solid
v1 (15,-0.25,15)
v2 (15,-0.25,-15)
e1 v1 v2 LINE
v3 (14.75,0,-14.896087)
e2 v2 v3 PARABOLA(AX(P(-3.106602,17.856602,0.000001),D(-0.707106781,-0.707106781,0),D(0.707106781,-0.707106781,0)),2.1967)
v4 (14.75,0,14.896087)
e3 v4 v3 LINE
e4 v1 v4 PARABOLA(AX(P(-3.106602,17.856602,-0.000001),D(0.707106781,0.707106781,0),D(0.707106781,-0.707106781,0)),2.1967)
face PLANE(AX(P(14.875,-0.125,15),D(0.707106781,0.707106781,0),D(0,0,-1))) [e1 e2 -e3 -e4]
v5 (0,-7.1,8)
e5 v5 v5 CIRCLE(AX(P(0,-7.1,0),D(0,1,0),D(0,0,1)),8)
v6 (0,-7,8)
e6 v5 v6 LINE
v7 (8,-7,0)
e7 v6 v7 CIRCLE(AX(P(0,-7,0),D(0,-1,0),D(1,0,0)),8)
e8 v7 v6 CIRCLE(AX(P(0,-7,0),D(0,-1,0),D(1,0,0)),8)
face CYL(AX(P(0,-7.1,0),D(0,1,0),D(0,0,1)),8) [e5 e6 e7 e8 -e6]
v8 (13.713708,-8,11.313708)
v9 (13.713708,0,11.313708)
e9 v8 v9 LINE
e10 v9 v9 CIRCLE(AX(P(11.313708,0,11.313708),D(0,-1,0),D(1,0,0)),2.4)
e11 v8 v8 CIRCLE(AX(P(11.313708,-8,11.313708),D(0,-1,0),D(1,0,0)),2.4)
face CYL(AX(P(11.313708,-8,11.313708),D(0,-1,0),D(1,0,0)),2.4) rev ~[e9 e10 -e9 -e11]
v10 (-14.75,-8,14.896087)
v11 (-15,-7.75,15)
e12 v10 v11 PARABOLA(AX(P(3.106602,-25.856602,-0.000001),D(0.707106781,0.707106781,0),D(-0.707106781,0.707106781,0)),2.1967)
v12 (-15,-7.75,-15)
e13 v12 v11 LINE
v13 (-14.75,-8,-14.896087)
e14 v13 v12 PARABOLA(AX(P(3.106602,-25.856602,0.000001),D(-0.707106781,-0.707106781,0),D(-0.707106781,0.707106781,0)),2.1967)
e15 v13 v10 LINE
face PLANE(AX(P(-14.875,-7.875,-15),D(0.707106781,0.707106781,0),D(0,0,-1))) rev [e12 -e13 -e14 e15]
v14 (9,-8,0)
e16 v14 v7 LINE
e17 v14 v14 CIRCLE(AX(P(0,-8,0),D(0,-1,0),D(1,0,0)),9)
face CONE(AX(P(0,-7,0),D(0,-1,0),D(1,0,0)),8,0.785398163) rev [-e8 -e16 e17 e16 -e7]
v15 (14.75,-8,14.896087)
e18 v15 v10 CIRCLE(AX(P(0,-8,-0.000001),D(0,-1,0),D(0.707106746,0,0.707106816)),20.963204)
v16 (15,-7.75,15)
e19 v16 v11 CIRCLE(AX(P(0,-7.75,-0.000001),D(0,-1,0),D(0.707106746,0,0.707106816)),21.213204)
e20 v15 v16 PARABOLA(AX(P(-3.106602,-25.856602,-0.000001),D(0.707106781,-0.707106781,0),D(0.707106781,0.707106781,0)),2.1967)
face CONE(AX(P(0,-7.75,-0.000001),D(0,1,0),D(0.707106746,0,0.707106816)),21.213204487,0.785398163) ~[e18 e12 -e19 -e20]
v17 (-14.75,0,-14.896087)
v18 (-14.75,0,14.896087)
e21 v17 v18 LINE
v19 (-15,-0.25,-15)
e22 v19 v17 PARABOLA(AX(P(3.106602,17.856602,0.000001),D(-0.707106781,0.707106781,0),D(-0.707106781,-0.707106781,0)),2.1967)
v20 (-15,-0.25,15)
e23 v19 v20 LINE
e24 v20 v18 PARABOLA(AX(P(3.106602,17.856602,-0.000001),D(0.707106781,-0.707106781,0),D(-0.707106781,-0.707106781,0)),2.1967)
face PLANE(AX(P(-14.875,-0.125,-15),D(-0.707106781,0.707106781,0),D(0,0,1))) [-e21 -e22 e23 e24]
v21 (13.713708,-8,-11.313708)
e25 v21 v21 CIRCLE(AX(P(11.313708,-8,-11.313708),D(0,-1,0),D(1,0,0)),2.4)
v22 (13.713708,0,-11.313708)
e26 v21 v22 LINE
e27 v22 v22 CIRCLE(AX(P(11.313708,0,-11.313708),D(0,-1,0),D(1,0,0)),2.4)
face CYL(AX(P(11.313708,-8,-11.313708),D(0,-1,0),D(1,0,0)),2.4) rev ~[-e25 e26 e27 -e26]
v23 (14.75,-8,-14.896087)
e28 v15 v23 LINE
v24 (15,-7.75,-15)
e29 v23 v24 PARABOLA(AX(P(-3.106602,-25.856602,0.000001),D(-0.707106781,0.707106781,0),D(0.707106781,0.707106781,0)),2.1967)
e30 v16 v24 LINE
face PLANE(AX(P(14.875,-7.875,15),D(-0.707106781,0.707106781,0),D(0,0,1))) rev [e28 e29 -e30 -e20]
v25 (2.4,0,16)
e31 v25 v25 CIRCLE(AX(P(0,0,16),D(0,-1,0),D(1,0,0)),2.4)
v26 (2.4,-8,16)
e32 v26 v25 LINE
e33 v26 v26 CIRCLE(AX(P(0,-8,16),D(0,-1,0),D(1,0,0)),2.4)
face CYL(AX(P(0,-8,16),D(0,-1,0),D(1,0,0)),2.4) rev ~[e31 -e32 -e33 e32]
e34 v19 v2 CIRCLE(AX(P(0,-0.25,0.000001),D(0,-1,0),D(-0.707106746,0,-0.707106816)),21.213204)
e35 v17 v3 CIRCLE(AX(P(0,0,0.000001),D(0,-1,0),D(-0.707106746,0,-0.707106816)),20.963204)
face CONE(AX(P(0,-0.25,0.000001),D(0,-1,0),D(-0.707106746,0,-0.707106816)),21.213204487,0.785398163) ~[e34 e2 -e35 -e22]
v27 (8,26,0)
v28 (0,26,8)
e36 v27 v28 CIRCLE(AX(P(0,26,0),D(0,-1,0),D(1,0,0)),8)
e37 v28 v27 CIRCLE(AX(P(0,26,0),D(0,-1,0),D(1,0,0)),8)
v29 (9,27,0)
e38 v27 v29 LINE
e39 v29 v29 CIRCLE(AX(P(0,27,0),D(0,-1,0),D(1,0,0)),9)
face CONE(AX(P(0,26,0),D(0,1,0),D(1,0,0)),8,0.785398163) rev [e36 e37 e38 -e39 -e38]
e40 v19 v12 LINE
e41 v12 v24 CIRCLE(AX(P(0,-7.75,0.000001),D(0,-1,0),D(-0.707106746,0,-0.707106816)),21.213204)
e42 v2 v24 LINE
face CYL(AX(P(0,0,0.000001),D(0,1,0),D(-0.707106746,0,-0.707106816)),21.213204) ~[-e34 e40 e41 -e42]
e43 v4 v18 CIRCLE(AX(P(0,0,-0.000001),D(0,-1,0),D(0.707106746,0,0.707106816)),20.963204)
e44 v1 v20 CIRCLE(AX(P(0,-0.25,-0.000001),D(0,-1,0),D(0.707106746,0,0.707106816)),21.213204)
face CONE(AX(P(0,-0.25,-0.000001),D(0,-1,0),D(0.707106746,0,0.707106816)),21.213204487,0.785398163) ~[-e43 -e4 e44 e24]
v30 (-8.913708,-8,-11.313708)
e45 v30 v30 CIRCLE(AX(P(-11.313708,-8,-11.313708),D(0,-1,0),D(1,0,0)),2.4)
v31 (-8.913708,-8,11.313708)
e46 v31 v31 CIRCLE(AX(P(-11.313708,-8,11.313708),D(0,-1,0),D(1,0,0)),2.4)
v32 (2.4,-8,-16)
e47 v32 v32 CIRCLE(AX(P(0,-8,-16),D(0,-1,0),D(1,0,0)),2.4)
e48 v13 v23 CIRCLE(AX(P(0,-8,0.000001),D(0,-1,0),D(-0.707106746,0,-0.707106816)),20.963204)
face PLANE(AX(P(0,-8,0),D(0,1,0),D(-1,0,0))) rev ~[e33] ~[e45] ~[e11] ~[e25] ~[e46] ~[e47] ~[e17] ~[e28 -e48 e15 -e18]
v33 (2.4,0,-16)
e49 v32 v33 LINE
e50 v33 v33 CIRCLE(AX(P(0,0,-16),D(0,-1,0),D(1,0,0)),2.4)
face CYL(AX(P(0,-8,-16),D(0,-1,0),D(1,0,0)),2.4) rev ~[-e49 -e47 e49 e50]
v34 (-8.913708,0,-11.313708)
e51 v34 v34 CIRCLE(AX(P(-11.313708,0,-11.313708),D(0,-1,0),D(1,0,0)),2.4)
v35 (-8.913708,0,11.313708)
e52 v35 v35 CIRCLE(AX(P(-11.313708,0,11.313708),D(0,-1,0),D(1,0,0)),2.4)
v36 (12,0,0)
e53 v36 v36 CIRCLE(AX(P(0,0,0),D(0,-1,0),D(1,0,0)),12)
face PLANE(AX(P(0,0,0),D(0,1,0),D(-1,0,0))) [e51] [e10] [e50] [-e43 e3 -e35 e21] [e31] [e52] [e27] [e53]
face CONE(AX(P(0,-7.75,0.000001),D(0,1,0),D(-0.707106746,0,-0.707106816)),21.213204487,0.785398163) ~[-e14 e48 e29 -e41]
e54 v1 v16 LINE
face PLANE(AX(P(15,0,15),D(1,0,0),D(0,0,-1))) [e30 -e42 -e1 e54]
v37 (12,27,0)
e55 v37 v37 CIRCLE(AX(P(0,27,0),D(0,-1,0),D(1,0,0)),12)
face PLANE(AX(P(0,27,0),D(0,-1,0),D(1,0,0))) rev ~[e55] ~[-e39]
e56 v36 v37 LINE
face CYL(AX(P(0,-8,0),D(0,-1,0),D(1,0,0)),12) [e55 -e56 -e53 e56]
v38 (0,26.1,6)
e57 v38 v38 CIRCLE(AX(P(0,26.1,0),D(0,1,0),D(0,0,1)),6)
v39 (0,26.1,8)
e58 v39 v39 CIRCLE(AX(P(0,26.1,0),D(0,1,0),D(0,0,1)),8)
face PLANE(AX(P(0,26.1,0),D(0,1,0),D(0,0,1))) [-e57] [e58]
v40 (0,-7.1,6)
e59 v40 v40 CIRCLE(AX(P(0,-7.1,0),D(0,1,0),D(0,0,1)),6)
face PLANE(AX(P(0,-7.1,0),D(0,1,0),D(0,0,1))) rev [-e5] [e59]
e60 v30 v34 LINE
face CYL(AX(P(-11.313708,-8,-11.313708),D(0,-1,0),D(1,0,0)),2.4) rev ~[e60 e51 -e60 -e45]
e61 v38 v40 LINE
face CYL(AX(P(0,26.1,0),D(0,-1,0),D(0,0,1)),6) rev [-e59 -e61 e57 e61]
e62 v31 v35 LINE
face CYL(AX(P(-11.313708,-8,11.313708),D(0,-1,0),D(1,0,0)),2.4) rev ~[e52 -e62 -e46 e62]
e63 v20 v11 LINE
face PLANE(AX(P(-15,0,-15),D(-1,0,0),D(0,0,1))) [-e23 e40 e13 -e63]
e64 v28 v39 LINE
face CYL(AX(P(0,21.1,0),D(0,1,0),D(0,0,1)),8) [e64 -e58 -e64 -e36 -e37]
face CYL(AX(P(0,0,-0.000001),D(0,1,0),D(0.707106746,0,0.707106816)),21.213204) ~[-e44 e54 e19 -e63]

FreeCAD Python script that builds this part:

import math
import FreeCAD as App
import Part
import Sketcher

V = App.Vector


def edges_at(feature, points):
    """Names of the edges that pass closest to the given points."""
    edges = feature.Shape.Edges
    near = lambda p: min(range(len(edges)), key=lambda i: edges[i].distToShape(Part.Vertex(*p))[0])
    return sorted({f"Edge{near(p) + 1}" for p in points})


def add_polygon(sketch, points):
    """Adds a closed chain of lines whose ends are joined by coincident constraints."""
    first, n = sketch.GeometryCount, len(points)
    for a, b in zip(points, points[1:] + points[:1]):
        sketch.addGeometry(Part.LineSegment(App.Vector(*a, 0), App.Vector(*b, 0)), False)
    for i in range(n):
        sketch.addConstraint(Sketcher.Constraint("Coincident", first + i, 2, first + (i + 1) % n, 1))

doc = App.newDocument("Part")
params = doc.addObject("Spreadsheet::Sheet", "Params")
for row, (alias, value) in enumerate([
    ("sketch1_width", "5 mm"),
    ("sketch1_height", "2 mm"),
    ("sketch1_height2", "1 mm"),
    ("sketch1_width2", "33.2 mm"),
    ("revolution_angle", "360 deg"),
    ("sketch2_diameter", "16 mm"),
    ("sketch2_height", "30 mm"),
    ("pad1_length", "8 mm"),
    ("sketch3_diameter", "4.8 mm"),
    ("sketch4_diameter", "24 mm"),
    ("sketch4_diameter2", "16 mm"),
    ("pad2_length", "35 mm"),
    ("chamfer_size", "0.25 mm"),
    ("chamfer2_size", "1 mm"),
    ("chamfer3_size", "1 mm"),
], start=1):
    params.set(f"A{row}", alias)
    params.set(f"B{row}", "=" + value)
    params.setAlias(f"B{row}", alias)

body = doc.addObject("PartDesign::Body", "Body")

# Sketch on YZ plane
sketch1 = body.newObject("Sketcher::SketchObject", "Sketch")
sketch1.AttachmentSupport = (doc.getObject("YZ_Plane"), [""])
sketch1.MapMode = "FlatFace"
add_polygon(sketch1, [(-7.1, 8), (-7.1, 6), (26.1, 6), (26.1, 8), (21.1, 8), (21.1, 9), (-2.1, 9), (-2.1, 8)])  # lines 0-7
sketch1.addConstraint(Sketcher.Constraint("Vertical", 0))
sketch1.addConstraint(Sketcher.Constraint("Horizontal", 1))
sketch1.addConstraint(Sketcher.Constraint("Vertical", 2))
sketch1.addConstraint(Sketcher.Constraint("Horizontal", 3))
sketch1.addConstraint(Sketcher.Constraint("Vertical", 4))
sketch1.addConstraint(Sketcher.Constraint("Horizontal", 5))
sketch1.addConstraint(Sketcher.Constraint("Vertical", 6))
sketch1.addConstraint(Sketcher.Constraint("Horizontal", 7))
sketch1.addConstraint(Sketcher.Constraint("Horizontal", 3, 2, 6, 2))
sketch1.addConstraint(Sketcher.Constraint("Equal", 3, 7))
sketch1.addConstraint(Sketcher.Constraint("DistanceX", 3, 2, 3, 1, 5.0))
sketch1.addConstraint(Sketcher.Constraint("DistanceY", 0, 2, 0, 1, 2.0))
sketch1.addConstraint(Sketcher.Constraint("DistanceY", 4, 1, 4, 2, 1.0))
sketch1.addConstraint(Sketcher.Constraint("DistanceX", 1, 1, 1, 2, 33.2))
sketch1.addConstraint(Sketcher.Constraint("DistanceY", -1, 1, 0, 2, 6.0))
sketch1.addConstraint(Sketcher.Constraint("DistanceX", 0, 2, -1, 1, 7.1))
sketch1.setExpression("Constraints[18]", "Params.sketch1_width")
sketch1.setExpression("Constraints[19]", "Params.sketch1_height")
sketch1.setExpression("Constraints[20]", "Params.sketch1_height2")
sketch1.setExpression("Constraints[21]", "Params.sketch1_width2")
revolution = body.newObject("PartDesign::Revolution", "Revolution")
revolution.Profile = sketch1
revolution.ReferenceAxis = (sketch1, ["H_Axis"])
revolution.setExpression("Angle", "Params.revolution_angle")
body2 = doc.addObject("PartDesign::Body", "Body001")

# Sketch on XZ plane
sketch2 = body2.newObject("Sketcher::SketchObject", "Sketch001")
sketch2.AttachmentSupport = (doc.getObject("XZ_Plane001"), [""])
sketch2.MapMode = "FlatFace"
sketch2.addGeometry(Part.LineSegment(V(15, -15, 0), V(15, 15, 0)), False)
sketch2.addGeometry(Part.ArcOfCircle(Part.Circle(V(0, -0.000001, 0), V(0, 0, 1), 21.213204), math.radians(45.000003), math.radians(134.999997)), False)
sketch2.addGeometry(Part.LineSegment(V(-15, 15, 0), V(-15, -15, 0)), False)
sketch2.addGeometry(Part.ArcOfCircle(Part.Circle(V(0, 0.000001, 0), V(0, 0, 1), 21.213204), math.radians(-134.999997), math.radians(-45.000003)), False)
sketch2.addGeometry(Part.Circle(V(0, 0, 0), V(0, 0, 1), 8), False)
sketch2.addConstraint(Sketcher.Constraint("Coincident", 0, 2, 1, 1))
sketch2.addConstraint(Sketcher.Constraint("Coincident", 1, 2, 2, 1))
sketch2.addConstraint(Sketcher.Constraint("Coincident", 2, 2, 3, 1))
sketch2.addConstraint(Sketcher.Constraint("Coincident", 3, 2, 0, 1))
sketch2.addConstraint(Sketcher.Constraint("Vertical", 0))
sketch2.addConstraint(Sketcher.Constraint("Vertical", 2))
sketch2.addConstraint(Sketcher.Constraint("Coincident", 1, 3, -1, 1))
sketch2.addConstraint(Sketcher.Constraint("Coincident", 3, 3, -1, 1))
sketch2.addConstraint(Sketcher.Constraint("Coincident", 4, 3, -1, 1))
sketch2.addConstraint(Sketcher.Constraint("Equal", 1, 3))
sketch2.addConstraint(Sketcher.Constraint("Horizontal", 0, 2, 1, 2))
sketch2.addConstraint(Sketcher.Constraint("Diameter", 4, 16.0))
sketch2.addConstraint(Sketcher.Constraint("DistanceY", 0, 1, 0, 2, 30.0))
sketch2.addConstraint(Sketcher.Constraint("DistanceX", -1, 1, 0, 2, 15.0))
sketch2.setExpression("Constraints[11]", "Params.sketch2_diameter")
sketch2.setExpression("Constraints[12]", "Params.sketch2_height")
pad1 = body2.newObject("PartDesign::Pad", "Pad")
pad1.Profile = sketch2
pad1.setExpression("Length", "Params.pad1_length")

# Sketch on XZ plane
sketch3 = body2.newObject("Sketcher::SketchObject", "Sketch002")
sketch3.AttachmentSupport = (doc.getObject("XZ_Plane001"), [""])
sketch3.MapMode = "FlatFace"
sketch3.AttachmentOffset = App.Placement(V(0, 0, 8), App.Rotation())
sketch3.addGeometry(Part.Circle(V(-11.313708, 11.313708, 0), V(0, 0, 1), 2.4), False)
sketch3.addGeometry(Part.Circle(V(0, 16, 0), V(0, 0, 1), 2.4), False)
sketch3.addGeometry(Part.Circle(V(11.313708, 11.313708, 0), V(0, 0, 1), 2.4), False)
sketch3.addGeometry(Part.Circle(V(11.313708, -11.313708, 0), V(0, 0, 1), 2.4), False)
sketch3.addGeometry(Part.Circle(V(0, -16, 0), V(0, 0, 1), 2.4), False)
sketch3.addGeometry(Part.Circle(V(-11.313708, -11.313708, 0), V(0, 0, 1), 2.4), False)
sketch3.addConstraint(Sketcher.Constraint("Equal", 0, 1))
sketch3.addConstraint(Sketcher.Constraint("Equal", 1, 2))
sketch3.addConstraint(Sketcher.Constraint("Equal", 2, 3))
sketch3.addConstraint(Sketcher.Constraint("Equal", 3, 4))
sketch3.addConstraint(Sketcher.Constraint("Equal", 4, 5))
sketch3.addConstraint(Sketcher.Constraint("Symmetric", 0, 3, 3, 3, -1, 1))
sketch3.addConstraint(Sketcher.Constraint("Symmetric", 1, 3, 4, 3, -1, 1))
sketch3.addConstraint(Sketcher.Constraint("Symmetric", 2, 3, 5, 3, -1, 1))
sketch3.addConstraint(Sketcher.Constraint("Symmetric", 0, 3, 2, 3, -2))
sketch3.addConstraint(Sketcher.Constraint("PointOnObject", 1, 3, -2))
sketch3.addConstraint(Sketcher.Constraint("Diameter", 0, 4.8))
sketch3.addConstraint(Sketcher.Constraint("DistanceY", -1, 1, 1, 3, 16.0))
sketch3.addConstraint(Sketcher.Constraint("DistanceX", 0, 3, -1, 1, 11.313708))
sketch3.addConstraint(Sketcher.Constraint("DistanceY", -1, 1, 0, 3, 11.313708))
sketch3.setExpression("Constraints[10]", "Params.sketch3_diameter")
pocket1 = body2.newObject("PartDesign::Pocket", "Pocket")
pocket1.Profile = sketch3
pocket1.Type = "ThroughAll"

# Sketch on XZ plane
sketch4 = body2.newObject("Sketcher::SketchObject", "Sketch003")
sketch4.AttachmentSupport = (doc.getObject("XZ_Plane001"), [""])
sketch4.MapMode = "FlatFace"
sketch4.AttachmentOffset = App.Placement(V(0, 0, 8), App.Rotation())
sketch4.addGeometry(Part.Circle(V(0, 0, 0), V(0, 0, 1), 12), False)
sketch4.addGeometry(Part.Circle(V(0, 0, 0), V(0, 0, 1), 8), False)
sketch4.addConstraint(Sketcher.Constraint("Coincident", 0, 3, -1, 1))
sketch4.addConstraint(Sketcher.Constraint("Coincident", 1, 3, -1, 1))
sketch4.addConstraint(Sketcher.Constraint("Diameter", 0, 24.0))
sketch4.addConstraint(Sketcher.Constraint("Diameter", 1, 16.0))
sketch4.setExpression("Constraints[2]", "Params.sketch4_diameter")
sketch4.setExpression("Constraints[3]", "Params.sketch4_diameter2")
pad2 = body2.newObject("PartDesign::Pad", "Pad001")
pad2.Profile = sketch4
pad2.setExpression("Length", "Params.pad2_length")
pad2.Reversed = True
doc.recompute()

chamfer = body2.newObject("PartDesign::Chamfer", "Chamfer")
chamfer.Base = (pad2, edges_at(pad2, [
    (0, -8, 21.213),
    (0, 0, 21.213),
    (15, 0, 0),
    (15, -8, 0),
    (0, 0, -21.213),
    (0, -8, -21.213),
    (-15, -8, 0),
    (-15, 0, 0),
]))
chamfer.setExpression("Size", "Params.chamfer_size")
doc.recompute()

chamfer2 = body2.newObject("PartDesign::Chamfer", "Chamfer001")
chamfer2.Base = (chamfer, edges_at(chamfer, [(-8, -8, 0)]))
chamfer2.setExpression("Size", "Params.chamfer2_size")
doc.recompute()

chamfer3 = body2.newObject("PartDesign::Chamfer", "Chamfer002")
chamfer3.Base = (chamfer2, edges_at(chamfer2, [(-8, 27, 0)]))
chamfer3.setExpression("Size", "Params.chamfer3_size")
doc.recompute()

boolean = body2.newObject("PartDesign::Boolean", "Boolean")
boolean.Type = "Fuse"
boolean.addObjects([body])

doc.recompute()
